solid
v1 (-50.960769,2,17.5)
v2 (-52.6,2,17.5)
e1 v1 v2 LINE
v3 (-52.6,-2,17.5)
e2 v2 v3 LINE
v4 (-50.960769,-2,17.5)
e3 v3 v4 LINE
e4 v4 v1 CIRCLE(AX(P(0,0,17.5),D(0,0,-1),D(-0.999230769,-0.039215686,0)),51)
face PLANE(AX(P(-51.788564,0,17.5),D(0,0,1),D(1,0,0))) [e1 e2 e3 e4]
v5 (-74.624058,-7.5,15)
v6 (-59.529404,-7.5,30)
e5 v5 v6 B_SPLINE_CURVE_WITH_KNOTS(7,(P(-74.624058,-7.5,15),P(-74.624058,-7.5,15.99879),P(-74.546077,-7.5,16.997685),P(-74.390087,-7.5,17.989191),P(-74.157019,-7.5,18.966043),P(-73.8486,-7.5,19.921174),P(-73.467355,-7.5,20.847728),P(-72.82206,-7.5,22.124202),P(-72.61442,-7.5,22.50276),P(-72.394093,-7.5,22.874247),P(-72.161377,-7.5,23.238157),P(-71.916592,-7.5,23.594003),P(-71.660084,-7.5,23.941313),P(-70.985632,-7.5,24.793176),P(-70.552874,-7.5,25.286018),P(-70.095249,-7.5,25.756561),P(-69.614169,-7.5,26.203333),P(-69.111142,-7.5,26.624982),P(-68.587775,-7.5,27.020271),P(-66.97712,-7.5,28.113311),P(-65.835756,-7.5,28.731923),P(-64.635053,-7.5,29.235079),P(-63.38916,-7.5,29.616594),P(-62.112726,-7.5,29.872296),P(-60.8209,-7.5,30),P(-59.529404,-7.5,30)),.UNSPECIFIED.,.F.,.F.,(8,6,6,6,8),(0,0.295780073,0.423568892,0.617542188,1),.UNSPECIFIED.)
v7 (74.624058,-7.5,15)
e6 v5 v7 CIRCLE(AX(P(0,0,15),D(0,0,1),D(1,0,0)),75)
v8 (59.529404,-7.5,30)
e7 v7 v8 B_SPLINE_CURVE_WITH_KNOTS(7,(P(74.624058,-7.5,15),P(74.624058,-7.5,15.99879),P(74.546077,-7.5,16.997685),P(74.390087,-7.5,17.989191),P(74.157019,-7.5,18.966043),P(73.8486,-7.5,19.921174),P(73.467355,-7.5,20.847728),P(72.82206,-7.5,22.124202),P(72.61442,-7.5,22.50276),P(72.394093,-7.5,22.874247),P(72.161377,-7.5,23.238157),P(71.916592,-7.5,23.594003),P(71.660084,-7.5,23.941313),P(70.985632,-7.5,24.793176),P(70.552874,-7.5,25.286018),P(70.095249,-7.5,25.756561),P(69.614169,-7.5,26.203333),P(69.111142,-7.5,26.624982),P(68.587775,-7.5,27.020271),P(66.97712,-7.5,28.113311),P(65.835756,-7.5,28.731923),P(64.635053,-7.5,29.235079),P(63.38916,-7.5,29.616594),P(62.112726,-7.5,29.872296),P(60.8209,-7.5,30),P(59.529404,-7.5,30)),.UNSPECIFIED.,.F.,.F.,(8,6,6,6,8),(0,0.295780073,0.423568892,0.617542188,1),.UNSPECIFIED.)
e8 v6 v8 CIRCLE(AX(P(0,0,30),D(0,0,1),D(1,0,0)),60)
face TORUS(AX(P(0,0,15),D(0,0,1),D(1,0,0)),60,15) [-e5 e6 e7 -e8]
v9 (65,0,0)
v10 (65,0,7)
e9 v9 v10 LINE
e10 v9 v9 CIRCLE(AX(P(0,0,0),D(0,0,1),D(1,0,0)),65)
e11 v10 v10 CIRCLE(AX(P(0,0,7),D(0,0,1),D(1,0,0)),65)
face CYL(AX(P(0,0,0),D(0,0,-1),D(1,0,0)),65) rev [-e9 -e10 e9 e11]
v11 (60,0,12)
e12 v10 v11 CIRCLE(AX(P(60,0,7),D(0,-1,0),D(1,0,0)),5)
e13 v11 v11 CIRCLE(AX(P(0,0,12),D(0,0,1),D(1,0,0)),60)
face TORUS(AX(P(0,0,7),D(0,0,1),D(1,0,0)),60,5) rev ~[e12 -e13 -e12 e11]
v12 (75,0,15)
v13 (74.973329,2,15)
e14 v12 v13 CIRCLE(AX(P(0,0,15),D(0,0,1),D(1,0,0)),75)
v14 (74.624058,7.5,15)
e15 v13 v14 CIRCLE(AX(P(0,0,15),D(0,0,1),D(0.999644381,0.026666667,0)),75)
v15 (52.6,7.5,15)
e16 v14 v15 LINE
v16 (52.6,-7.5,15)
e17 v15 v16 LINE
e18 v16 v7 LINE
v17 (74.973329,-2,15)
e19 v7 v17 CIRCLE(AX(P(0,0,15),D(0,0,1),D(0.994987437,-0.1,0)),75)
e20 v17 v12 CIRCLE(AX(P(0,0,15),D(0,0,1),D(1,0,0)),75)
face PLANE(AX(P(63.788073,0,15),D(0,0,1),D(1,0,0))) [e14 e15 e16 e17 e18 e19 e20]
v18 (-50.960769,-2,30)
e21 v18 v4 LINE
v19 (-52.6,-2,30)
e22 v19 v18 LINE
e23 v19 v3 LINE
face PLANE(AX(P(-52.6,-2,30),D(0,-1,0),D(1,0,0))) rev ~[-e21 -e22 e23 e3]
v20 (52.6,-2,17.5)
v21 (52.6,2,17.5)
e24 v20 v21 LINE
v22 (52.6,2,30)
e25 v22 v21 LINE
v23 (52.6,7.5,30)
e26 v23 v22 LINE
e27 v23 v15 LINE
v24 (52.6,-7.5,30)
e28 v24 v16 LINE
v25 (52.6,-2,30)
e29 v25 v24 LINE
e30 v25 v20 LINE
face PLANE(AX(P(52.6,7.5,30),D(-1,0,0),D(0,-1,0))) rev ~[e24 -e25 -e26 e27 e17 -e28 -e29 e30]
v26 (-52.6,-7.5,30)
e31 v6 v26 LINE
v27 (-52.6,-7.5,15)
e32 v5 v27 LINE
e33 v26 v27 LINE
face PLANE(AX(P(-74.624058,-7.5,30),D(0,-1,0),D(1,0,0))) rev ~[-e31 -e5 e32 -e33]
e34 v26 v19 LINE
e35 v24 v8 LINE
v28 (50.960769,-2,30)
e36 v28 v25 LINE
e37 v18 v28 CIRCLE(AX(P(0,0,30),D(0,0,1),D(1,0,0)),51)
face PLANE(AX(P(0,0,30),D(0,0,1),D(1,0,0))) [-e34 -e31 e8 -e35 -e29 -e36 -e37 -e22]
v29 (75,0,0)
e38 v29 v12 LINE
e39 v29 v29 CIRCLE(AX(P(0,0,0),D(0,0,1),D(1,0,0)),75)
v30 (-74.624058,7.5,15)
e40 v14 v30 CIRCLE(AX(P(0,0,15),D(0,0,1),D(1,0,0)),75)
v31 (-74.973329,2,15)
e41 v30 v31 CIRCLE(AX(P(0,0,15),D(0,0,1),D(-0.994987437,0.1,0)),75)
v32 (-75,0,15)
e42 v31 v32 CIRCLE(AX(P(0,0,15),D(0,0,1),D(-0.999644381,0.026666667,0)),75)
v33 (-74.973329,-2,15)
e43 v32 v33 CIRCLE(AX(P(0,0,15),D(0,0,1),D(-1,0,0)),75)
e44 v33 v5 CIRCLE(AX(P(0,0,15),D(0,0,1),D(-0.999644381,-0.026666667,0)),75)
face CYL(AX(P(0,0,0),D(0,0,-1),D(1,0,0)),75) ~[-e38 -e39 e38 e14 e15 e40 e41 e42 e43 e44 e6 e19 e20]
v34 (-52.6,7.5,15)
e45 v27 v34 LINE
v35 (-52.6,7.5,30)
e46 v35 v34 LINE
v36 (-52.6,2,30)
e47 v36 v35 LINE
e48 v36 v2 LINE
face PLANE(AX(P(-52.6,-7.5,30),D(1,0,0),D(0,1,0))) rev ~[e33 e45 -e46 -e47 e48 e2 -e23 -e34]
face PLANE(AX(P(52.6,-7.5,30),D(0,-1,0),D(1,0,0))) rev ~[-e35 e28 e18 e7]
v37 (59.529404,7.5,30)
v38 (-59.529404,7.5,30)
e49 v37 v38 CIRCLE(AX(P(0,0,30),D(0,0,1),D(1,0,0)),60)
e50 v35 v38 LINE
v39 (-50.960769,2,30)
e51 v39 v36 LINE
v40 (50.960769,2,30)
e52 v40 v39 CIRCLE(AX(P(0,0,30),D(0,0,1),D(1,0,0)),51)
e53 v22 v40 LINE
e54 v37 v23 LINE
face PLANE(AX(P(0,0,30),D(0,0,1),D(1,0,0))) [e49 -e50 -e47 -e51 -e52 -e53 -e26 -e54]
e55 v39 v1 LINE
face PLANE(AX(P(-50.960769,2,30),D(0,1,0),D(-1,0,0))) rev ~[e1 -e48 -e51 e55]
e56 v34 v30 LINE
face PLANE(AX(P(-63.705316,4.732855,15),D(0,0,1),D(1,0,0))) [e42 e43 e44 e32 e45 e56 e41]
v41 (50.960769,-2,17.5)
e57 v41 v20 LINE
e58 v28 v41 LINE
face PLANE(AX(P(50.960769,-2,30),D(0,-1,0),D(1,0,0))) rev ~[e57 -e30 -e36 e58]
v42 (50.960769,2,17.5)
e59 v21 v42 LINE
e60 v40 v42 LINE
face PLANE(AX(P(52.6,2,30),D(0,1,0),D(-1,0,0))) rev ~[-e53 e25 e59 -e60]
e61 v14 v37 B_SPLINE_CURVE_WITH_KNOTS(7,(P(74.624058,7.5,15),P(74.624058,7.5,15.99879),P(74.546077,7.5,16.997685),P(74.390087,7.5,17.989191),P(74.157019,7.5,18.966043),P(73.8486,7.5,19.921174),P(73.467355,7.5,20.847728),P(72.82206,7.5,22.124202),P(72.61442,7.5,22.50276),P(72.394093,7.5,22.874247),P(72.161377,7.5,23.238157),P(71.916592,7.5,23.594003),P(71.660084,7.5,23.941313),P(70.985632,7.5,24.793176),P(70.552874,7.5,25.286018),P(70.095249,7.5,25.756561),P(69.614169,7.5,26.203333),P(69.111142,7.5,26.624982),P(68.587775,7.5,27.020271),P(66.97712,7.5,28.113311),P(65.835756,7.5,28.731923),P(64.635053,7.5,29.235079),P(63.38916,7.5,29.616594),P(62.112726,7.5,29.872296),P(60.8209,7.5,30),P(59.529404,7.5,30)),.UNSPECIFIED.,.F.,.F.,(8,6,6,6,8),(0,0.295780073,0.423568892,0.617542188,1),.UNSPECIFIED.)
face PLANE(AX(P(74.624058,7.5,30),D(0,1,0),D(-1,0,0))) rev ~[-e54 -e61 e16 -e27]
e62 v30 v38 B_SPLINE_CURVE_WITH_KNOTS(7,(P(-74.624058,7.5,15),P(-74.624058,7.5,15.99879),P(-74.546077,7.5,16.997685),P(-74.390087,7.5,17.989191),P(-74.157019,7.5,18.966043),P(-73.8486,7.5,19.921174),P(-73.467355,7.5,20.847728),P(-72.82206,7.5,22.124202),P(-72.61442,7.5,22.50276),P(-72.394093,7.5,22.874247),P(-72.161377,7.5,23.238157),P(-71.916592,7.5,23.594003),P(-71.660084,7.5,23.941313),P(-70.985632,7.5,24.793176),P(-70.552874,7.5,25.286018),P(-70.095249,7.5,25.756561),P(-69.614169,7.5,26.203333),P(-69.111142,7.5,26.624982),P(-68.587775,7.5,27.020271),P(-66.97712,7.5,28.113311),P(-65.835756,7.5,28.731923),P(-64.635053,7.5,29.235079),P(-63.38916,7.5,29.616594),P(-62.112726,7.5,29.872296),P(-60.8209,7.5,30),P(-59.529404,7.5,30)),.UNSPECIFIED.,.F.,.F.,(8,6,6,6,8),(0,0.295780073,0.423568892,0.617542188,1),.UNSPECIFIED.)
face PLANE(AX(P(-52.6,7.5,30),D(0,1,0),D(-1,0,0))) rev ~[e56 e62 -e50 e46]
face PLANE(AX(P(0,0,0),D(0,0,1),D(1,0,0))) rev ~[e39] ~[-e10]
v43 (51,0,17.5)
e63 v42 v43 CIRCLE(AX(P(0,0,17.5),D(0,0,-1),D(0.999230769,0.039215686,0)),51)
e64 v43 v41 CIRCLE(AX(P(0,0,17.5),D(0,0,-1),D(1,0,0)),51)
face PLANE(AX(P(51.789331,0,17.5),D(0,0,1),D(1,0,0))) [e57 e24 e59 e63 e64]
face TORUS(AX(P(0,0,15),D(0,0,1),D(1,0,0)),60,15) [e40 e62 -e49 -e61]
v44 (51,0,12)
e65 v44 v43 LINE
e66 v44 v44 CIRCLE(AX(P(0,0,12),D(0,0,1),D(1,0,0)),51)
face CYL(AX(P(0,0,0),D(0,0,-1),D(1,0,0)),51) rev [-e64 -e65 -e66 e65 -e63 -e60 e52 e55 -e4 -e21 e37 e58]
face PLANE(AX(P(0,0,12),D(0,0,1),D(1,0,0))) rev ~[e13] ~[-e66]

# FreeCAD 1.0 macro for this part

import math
import FreeCAD as App
import Part
import Sketcher

V = App.Vector


def edges_at(feature, points):
    """Names of the edges that pass closest to the given points."""
    edges = feature.Shape.Edges
    near = lambda p: min(range(len(edges)), key=lambda i: edges[i].distToShape(Part.Vertex(*p))[0])
    return sorted({f"Edge{near(p) + 1}" for p in points})

doc = App.newDocument("Part")
body = doc.addObject("PartDesign::Body", "Body")

sketch1 = doc.addObject("Sketcher::SketchObject", "Sketch")
body.addObject(sketch1)
sketch1.AttachmentSupport = (doc.XY_Plane, [""])
sketch1.MapMode = "FlatFace"
sketch1.addGeometry(Part.Circle(V(0, 0, 0), V(0, 0, 1), 75), False)
sketch1.addGeometry(Part.Circle(V(0, 0, 0), V(0, 0, 1), 51), False)
sketch1.addConstraint(Sketcher.Constraint("Coincident", 0, 3, -1, 1))
sketch1.addConstraint(Sketcher.Constraint("Coincident", 1, 3, -1, 1))
sketch1.addConstraint(Sketcher.Constraint("Diameter", 0, 150.0))
sketch1.addConstraint(Sketcher.Constraint("Diameter", 1, 102.0))
pad1 = doc.addObject("PartDesign::Pad", "Pad")
body.addObject(pad1)
pad1.Profile = sketch1
pad1.Length = 30

sketch2 = doc.addObject("Sketcher::SketchObject", "Sketch001")
body.addObject(sketch2)
sketch2.AttachmentSupport = (doc.XY_Plane, [""])
sketch2.MapMode = "FlatFace"
sketch2.addGeometry(Part.Circle(V(0, 0, 0), V(0, 0, 1), 65), False)
sketch2.addGeometry(Part.Circle(V(0, 0, 0), V(0, 0, 1), 51), False)
sketch2.addConstraint(Sketcher.Constraint("Coincident", 0, 3, -1, 1))
sketch2.addConstraint(Sketcher.Constraint("Coincident", 1, 3, -1, 1))
sketch2.addConstraint(Sketcher.Constraint("Diameter", 0, 130.0))
sketch2.addConstraint(Sketcher.Constraint("Diameter", 1, 102.0))
pocket1 = doc.addObject("PartDesign::Pocket", "Pocket")
body.addObject(pocket1)
pocket1.Profile = sketch2
pocket1.Length = 12
pocket1.Reversed = True
doc.recompute()

fillet = doc.addObject("PartDesign::Fillet", "Fillet")
body.addObject(fillet)
fillet.Base = (pocket1, edges_at(pocket1, [(-65, 0, 12)]))
fillet.Radius = 5
doc.recompute()

fillet2 = doc.addObject("PartDesign::Fillet", "Fillet001")
body.addObject(fillet2)
fillet2.Base = (fillet, edges_at(fillet, [(-75, 0, 30)]))
fillet2.Radius = 15

sketch3 = doc.addObject("Sketcher::SketchObject", "Sketch002")
body.addObject(sketch3)
sketch3.AttachmentSupport = (doc.XY_Plane, [""])
sketch3.MapMode = "FlatFace"
sketch3.AttachmentOffset = App.Placement(V(0, 0, 30), App.Rotation())
sketch3.addGeometry(Part.ArcOfCircle(Part.Circle(V(0, 0, 0), V(0, 0, 1), 75), math.radians(-1.53), math.radians(0)), False)
sketch3.addGeometry(Part.ArcOfCircle(Part.Circle(V(0, 0, 0), V(0, 0, 1), 75), math.radians(0), math.radians(1.53)), False)
sketch3.addGeometry(Part.ArcOfCircle(Part.Circle(V(0, 0, 0), V(0, 0, 1), 75), math.radians(1.53), math.radians(5.74)), False)
sketch3.addGeometry(Part.LineSegment(V(74.6, 7.5, 0), V(52.6, 7.5, 0)), False)
sketch3.addGeometry(Part.LineSegment(V(52.6, 7.5, 0), V(52.6, -7.5, 0)), False)
sketch3.addGeometry(Part.LineSegment(V(52.6, -7.5, 0), V(74.6, -7.5, 0)), False)
sketch3.addGeometry(Part.ArcOfCircle(Part.Circle(V(0, 0, 0), V(0, 0, 1), 75), math.radians(-5.74), math.radians(-1.53)), False)
sketch3.addGeometry(Part.LineSegment(V(-52.6, 7.5, 0), V(-74.6, 7.5, 0)), False)
sketch3.addGeometry(Part.ArcOfCircle(Part.Circle(V(0, 0, 0), V(0, 0, 1), 75), math.radians(174.26), math.radians(178.47)), False)
sketch3.addGeometry(Part.ArcOfCircle(Part.Circle(V(0, 0, 0), V(0, 0, 1), 75), math.radians(178.47), math.radians(180)), False)
sketch3.addGeometry(Part.ArcOfCircle(Part.Circle(V(0, 0, 0), V(0, 0, 1), 75), math.radians(180), math.radians(181.53)), False)
sketch3.addGeometry(Part.ArcOfCircle(Part.Circle(V(0, 0, 0), V(0, 0, 1), 75), math.radians(-178.47), math.radians(-174.26)), False)
sketch3.addGeometry(Part.LineSegment(V(-74.6, -7.5, 0), V(-52.6, -7.5, 0)), False)
sketch3.addGeometry(Part.LineSegment(V(-52.6, -7.5, 0), V(-52.6, 7.5, 0)), False)
sketch3.addConstraint(Sketcher.Constraint("Tangent", 0, 2, 1, 1))
sketch3.addConstraint(Sketcher.Constraint("Tangent", 1, 2, 2, 1))
sketch3.addConstraint(Sketcher.Constraint("Coincident", 2, 2, 3, 1))
sketch3.addConstraint(Sketcher.Constraint("Coincident", 3, 2, 4, 1))
sketch3.addConstraint(Sketcher.Constraint("Coincident", 4, 2, 5, 1))
sketch3.addConstraint(Sketcher.Constraint("Coincident", 5, 2, 6, 1))
sketch3.addConstraint(Sketcher.Constraint("Tangent", 6, 2, 0, 1))
sketch3.addConstraint(Sketcher.Constraint("Coincident", 7, 2, 8, 1))
sketch3.addConstraint(Sketcher.Constraint("Tangent", 8, 2, 9, 1))
sketch3.addConstraint(Sketcher.Constraint("Tangent", 9, 2, 10, 1))
sketch3.addConstraint(Sketcher.Constraint("Tangent", 10, 2, 11, 1))
sketch3.addConstraint(Sketcher.Constraint("Coincident", 11, 2, 12, 1))
sketch3.addConstraint(Sketcher.Constraint("Coincident", 12, 2, 13, 1))
sketch3.addConstraint(Sketcher.Constraint("Coincident", 13, 2, 7, 1))
sketch3.addConstraint(Sketcher.Constraint("Horizontal", 3))
sketch3.addConstraint(Sketcher.Constraint("Vertical", 4))
sketch3.addConstraint(Sketcher.Constraint("Horizontal", 5))
sketch3.addConstraint(Sketcher.Constraint("Horizontal", 7))
sketch3.addConstraint(Sketcher.Constraint("Horizontal", 12))
sketch3.addConstraint(Sketcher.Constraint("Vertical", 13))
sketch3.addConstraint(Sketcher.Constraint("Coincident", 0, 3, -1, 1))
sketch3.addConstraint(Sketcher.Constraint("Coincident", 2, 3, -1, 1))
sketch3.addConstraint(Sketcher.Constraint("Coincident", 8, 3, -1, 1))
sketch3.addConstraint(Sketcher.Constraint("Coincident", 10, 3, -1, 1))
sketch3.addConstraint(Sketcher.Constraint("Equal", 2, 6))
sketch3.addConstraint(Sketcher.Constraint("Equal", 6, 8))
sketch3.addConstraint(Sketcher.Constraint("Equal", 10, 11))
sketch3.addConstraint(Sketcher.Constraint("Symmetric", 3, 2, 12, 2, -1, 1))
sketch3.addConstraint(Sketcher.Constraint("PointOnObject", 0, 2, -1))
sketch3.addConstraint(Sketcher.Constraint("PointOnObject", 9, 2, -1))
sketch3.addConstraint(Sketcher.Constraint("Horizontal", 3, 2, 7, 2))
sketch3.addConstraint(Sketcher.Constraint("Horizontal", 1, 2, 8, 2))
sketch3.addConstraint(Sketcher.Constraint("Horizontal", 6, 2, 10, 2))
sketch3.addConstraint(Sketcher.Constraint("Horizontal", 5, 2, 11, 2))
sketch3.addConstraint(Sketcher.Constraint("Vertical", 1, 2, 6, 2))
sketch3.addConstraint(Sketcher.Constraint("Radius", 0, 75.0))
sketch3.addConstraint(Sketcher.Constraint("DistanceY", 4, 2, 4, 1, 15.0))
sketch3.addConstraint(Sketcher.Constraint("DistanceY", -1, 1, 1, 2, 2.0))
sketch3.addConstraint(Sketcher.Constraint("DistanceX", -1, 1, 3, 2, 52.6))
pocket2 = doc.addObject("PartDesign::Pocket", "Pocket001")
body.addObject(pocket2)
pocket2.Profile = sketch3
pocket2.Length = 15

sketch4 = doc.addObject("Sketcher::SketchObject", "Sketch003")
body.addObject(sketch4)
sketch4.AttachmentSupport = (doc.XY_Plane, [""])
sketch4.MapMode = "FlatFace"
sketch4.AttachmentOffset = App.Placement(V(0, 0, 30), App.Rotation())
sketch4.addGeometry(Part.LineSegment(V(-52.6, -2, 0), V(-51, -2, 0)), False)
sketch4.addGeometry(Part.ArcOfCircle(Part.Circle(V(0, 0, 0), V(0, 0, 1), 51), math.radians(177.75), math.radians(182.25)), False)
sketch4.addGeometry(Part.LineSegment(V(-51, 2, 0), V(-52.6, 2, 0)), False)
sketch4.addGeometry(Part.LineSegment(V(-52.6, 2, 0), V(-52.6, -2, 0)), False)
sketch4.addGeometry(Part.LineSegment(V(51, -2, 0), V(52.6, -2, 0)), False)
sketch4.addGeometry(Part.LineSegment(V(52.6, -2, 0), V(52.6, 2, 0)), False)
sketch4.addGeometry(Part.LineSegment(V(52.6, 2, 0), V(51, 2, 0)), False)
sketch4.addGeometry(Part.ArcOfCircle(Part.Circle(V(0, 0, 0), V(0, 0, 1), 51), math.radians(0), math.radians(2.25)), False)
sketch4.addGeometry(Part.ArcOfCircle(Part.Circle(V(0, 0, 0), V(0, 0, 1), 51), math.radians(-2.25), math.radians(0)), False)
sketch4.addConstraint(Sketcher.Constraint("Coincident", 0, 2, 1, 2))
sketch4.addConstraint(Sketcher.Constraint("Coincident", 1, 1, 2, 1))
sketch4.addConstraint(Sketcher.Constraint("Coincident", 2, 2, 3, 1))
sketch4.addConstraint(Sketcher.Constraint("Coincident", 3, 2, 0, 1))
sketch4.addConstraint(Sketcher.Constraint("Coincident", 4, 2, 5, 1))
sketch4.addConstraint(Sketcher.Constraint("Coincident", 5, 2, 6, 1))
sketch4.addConstraint(Sketcher.Constraint("Coincident", 6, 2, 7, 2))
sketch4.addConstraint(Sketcher.Constraint("Tangent", 7, 1, 8, 2))
sketch4.addConstraint(Sketcher.Constraint("Coincident", 8, 1, 4, 1))
sketch4.addConstraint(Sketcher.Constraint("Horizontal", 0))
sketch4.addConstraint(Sketcher.Constraint("Horizontal", 2))
sketch4.addConstraint(Sketcher.Constraint("Vertical", 3))
sketch4.addConstraint(Sketcher.Constraint("Horizontal", 4))
sketch4.addConstraint(Sketcher.Constraint("Vertical", 5))
sketch4.addConstraint(Sketcher.Constraint("Horizontal", 6))
sketch4.addConstraint(Sketcher.Constraint("Coincident", 1, 3, -1, 1))
sketch4.addConstraint(Sketcher.Constraint("Coincident", 7, 3, -1, 1))
sketch4.addConstraint(Sketcher.Constraint("Equal", 1, 7))
sketch4.addConstraint(Sketcher.Constraint("Equal", 7, 8))
sketch4.addConstraint(Sketcher.Constraint("Symmetric", 2, 2, 4, 2, -1, 1))
sketch4.addConstraint(Sketcher.Constraint("PointOnObject", 7, 1, -1))
sketch4.addConstraint(Sketcher.Constraint("Horizontal", 3, 2, 4, 2))
sketch4.addConstraint(Sketcher.Constraint("Horizontal", 2, 2, 5, 2))
sketch4.addConstraint(Sketcher.Constraint("Radius", 1, 51.0))
sketch4.addConstraint(Sketcher.Constraint("DistanceY", 3, 2, 3, 1, 4.0))
sketch4.addConstraint(Sketcher.Constraint("DistanceX", 2, 2, -1, 1, 52.6))
pocket3 = doc.addObject("PartDesign::Pocket", "Pocket002")
body.addObject(pocket3)
pocket3.Profile = sketch4
pocket3.Length = 12.5

doc.recompute()
